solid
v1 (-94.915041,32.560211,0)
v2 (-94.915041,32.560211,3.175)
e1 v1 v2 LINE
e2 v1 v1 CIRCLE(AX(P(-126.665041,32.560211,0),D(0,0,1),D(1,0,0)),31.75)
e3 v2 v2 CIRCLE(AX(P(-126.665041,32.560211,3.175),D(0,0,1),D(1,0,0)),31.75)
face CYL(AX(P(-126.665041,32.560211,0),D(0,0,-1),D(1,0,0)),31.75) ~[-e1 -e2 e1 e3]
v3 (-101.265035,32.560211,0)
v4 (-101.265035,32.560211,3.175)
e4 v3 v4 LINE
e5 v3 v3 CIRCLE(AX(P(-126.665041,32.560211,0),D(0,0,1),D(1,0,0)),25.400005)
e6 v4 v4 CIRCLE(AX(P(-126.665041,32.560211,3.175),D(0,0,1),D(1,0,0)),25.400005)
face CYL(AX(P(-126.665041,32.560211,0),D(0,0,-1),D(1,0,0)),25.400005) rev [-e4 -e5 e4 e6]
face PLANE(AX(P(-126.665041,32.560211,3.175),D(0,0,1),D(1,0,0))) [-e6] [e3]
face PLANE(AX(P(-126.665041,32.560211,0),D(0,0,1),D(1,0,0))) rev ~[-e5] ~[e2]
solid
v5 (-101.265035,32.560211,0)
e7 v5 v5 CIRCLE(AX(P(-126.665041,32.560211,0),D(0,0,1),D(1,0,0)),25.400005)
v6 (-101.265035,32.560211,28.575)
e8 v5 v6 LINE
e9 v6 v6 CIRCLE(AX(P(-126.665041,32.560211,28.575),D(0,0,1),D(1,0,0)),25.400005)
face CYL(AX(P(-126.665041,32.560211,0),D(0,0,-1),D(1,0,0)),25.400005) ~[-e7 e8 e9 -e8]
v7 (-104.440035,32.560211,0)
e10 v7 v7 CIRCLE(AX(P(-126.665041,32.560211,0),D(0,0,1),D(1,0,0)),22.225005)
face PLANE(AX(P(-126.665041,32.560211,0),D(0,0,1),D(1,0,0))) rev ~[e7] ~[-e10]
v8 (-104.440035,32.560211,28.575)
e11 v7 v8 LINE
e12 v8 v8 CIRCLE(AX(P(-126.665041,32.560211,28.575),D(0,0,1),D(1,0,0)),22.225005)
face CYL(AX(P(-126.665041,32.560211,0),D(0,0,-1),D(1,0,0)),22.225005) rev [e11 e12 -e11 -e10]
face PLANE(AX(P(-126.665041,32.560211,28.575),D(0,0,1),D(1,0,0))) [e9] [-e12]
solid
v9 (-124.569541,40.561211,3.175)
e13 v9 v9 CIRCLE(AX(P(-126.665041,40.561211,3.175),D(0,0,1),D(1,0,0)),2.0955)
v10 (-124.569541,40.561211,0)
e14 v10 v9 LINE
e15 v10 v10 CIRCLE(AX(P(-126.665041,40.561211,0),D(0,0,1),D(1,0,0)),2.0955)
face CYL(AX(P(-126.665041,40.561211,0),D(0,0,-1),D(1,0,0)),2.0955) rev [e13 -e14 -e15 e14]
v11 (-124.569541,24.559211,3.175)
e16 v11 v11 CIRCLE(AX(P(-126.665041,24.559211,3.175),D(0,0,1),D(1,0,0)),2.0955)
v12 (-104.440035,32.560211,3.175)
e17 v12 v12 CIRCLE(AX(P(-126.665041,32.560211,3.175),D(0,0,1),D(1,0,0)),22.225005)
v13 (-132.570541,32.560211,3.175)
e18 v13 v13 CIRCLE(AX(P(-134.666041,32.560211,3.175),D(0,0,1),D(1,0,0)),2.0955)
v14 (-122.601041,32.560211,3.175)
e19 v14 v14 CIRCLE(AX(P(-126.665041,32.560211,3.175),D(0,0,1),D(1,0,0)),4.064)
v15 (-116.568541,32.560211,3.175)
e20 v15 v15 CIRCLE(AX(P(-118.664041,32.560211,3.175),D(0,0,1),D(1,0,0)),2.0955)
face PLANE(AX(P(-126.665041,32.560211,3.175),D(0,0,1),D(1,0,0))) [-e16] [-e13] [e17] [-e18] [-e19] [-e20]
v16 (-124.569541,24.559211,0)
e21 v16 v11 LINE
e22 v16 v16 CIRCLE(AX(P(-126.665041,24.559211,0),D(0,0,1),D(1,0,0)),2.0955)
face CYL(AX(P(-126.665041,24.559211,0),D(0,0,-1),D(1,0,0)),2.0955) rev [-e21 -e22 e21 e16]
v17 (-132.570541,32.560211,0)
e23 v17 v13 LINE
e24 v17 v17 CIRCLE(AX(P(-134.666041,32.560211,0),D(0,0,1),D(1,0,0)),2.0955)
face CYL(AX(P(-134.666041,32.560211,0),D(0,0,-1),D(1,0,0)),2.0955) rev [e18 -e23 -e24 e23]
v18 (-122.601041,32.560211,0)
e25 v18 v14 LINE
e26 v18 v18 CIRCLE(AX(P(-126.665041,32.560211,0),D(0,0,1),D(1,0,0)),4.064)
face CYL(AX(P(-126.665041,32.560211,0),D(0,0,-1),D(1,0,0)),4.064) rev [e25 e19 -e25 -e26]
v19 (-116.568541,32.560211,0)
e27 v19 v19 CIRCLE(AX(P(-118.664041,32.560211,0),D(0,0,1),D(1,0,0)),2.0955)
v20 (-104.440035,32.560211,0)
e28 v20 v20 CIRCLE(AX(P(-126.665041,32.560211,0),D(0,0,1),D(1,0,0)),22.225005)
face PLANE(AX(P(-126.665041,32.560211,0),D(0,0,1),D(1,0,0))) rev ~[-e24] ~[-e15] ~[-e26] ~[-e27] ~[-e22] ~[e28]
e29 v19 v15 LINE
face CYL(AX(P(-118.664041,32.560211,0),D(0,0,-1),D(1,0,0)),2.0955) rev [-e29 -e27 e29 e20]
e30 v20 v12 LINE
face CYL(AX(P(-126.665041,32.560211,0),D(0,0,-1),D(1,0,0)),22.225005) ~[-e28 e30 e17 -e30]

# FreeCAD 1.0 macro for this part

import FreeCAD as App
import Part
import Sketcher
from FreeCAD import Vector
Q = App.Units.Quantity

doc = App.newDocument("Part")
body = doc.addObject("PartDesign::Body", "Body")

sketch1 = body.newObject("Sketcher::SketchObject", "Sketch")
sketch1.AttachmentSupport = (doc.getObject("XY_Plane"), [""])
sketch1.MapMode = "FlatFace"
sketch1.addGeometry(Part.Circle(Vector(-126.7, 32.6, 0), Vector(0, 0, 1), 22.2), False)
sketch1.addGeometry(Part.Circle(Vector(-126.7, 24.6, 0), Vector(0, 0, 1), 2.1), False)
sketch1.addGeometry(Part.Circle(Vector(-134.7, 32.6, 0), Vector(0, 0, 1), 2.1), False)
sketch1.addGeometry(Part.Circle(Vector(-126.7, 32.6, 0), Vector(0, 0, 1), 4.1), False)
sketch1.addGeometry(Part.Circle(Vector(-126.7, 40.6, 0), Vector(0, 0, 1), 2.1), False)
sketch1.addGeometry(Part.Circle(Vector(-118.7, 32.6, 0), Vector(0, 0, 1), 2.1), False)
sketch1.addConstraint(Sketcher.Constraint("Coincident", 3, 3, 0, 3))
sketch1.addConstraint(Sketcher.Constraint("Equal", 1, 2))
sketch1.addConstraint(Sketcher.Constraint("Equal", 2, 4))
sketch1.addConstraint(Sketcher.Constraint("Equal", 4, 5))
sketch1.addConstraint(Sketcher.Constraint("Horizontal", 0, 3, 2, 3))
sketch1.addConstraint(Sketcher.Constraint("Horizontal", 3, 3, 5, 3))
sketch1.addConstraint(Sketcher.Constraint("Vertical", 0, 3, 1, 3))
sketch1.addConstraint(Sketcher.Constraint("Vertical", 3, 3, 4, 3))
sketch1.addConstraint(Sketcher.Constraint("Diameter", 3, Q("0.32 in")))
sketch1.addConstraint(Sketcher.Constraint("Diameter", 1, Q("0.165 in")))
sketch1.addConstraint(Sketcher.Constraint("DistanceY", 1, 3, 4, 3, Q("0.63 in")))
sketch1.addConstraint(Sketcher.Constraint("DistanceX", 2, 3, 5, 3, Q("0.63 in")))
sketch1.addConstraint(Sketcher.Constraint("Diameter", 0, Q("44.450011 mm")))
sketch1.addConstraint(Sketcher.Constraint("DistanceY", 1, 3, 0, 3, Q("0.315 in")))
sketch1.addConstraint(Sketcher.Constraint("DistanceX", 2, 3, 0, 3, Q("0.315 in")))
sketch1.addConstraint(Sketcher.Constraint("DistanceX", 0, 3, -1, 1, Q("126.665041 mm")))
sketch1.addConstraint(Sketcher.Constraint("DistanceY", -1, 1, 0, 3, Q("32.560211 mm")))
pad1 = body.newObject("PartDesign::Pad", "Pad")
pad1.Profile = sketch1
pad1.Length = Q("0.125 in")
body2 = doc.addObject("PartDesign::Body", "Body001")

sketch2 = body2.newObject("Sketcher::SketchObject", "Sketch001")
sketch2.AttachmentSupport = (doc.getObject("XY_Plane001"), [""])
sketch2.MapMode = "FlatFace"
sketch2.addGeometry(Part.Circle(Vector(-127, 33, 0), Vector(0, 0, 1), 32), False)
sketch2.addGeometry(Part.Circle(Vector(-127, 33, 0), Vector(0, 0, 1), 25), False)
sketch2.addConstraint(Sketcher.Constraint("Coincident", 1, 3, 0, 3))
sketch2.addConstraint(Sketcher.Constraint("Diameter", 0, Q("2.5 in")))
sketch2.addConstraint(Sketcher.Constraint("Diameter", 1, Q("50.800011 mm")))
sketch2.addConstraint(Sketcher.Constraint("DistanceX", 0, 3, -1, 1, Q("126.665041 mm")))
sketch2.addConstraint(Sketcher.Constraint("DistanceY", -1, 1, 0, 3, Q("32.560211 mm")))
pad2 = body2.newObject("PartDesign::Pad", "Pad001")
pad2.Profile = sketch2
pad2.Length = Q("0.125 in")
body3 = doc.addObject("PartDesign::Body", "Body002")

sketch3 = body3.newObject("Sketcher::SketchObject", "Sketch002")
sketch3.AttachmentSupport = (doc.getObject("XY_Plane002"), [""])
sketch3.MapMode = "FlatFace"
sketch3.addGeometry(Part.Circle(Vector(-127, 33, 0), Vector(0, 0, 1), 25), False)
sketch3.addGeometry(Part.Circle(Vector(-127, 33, 0), Vector(0, 0, 1), 22), False)
sketch3.addConstraint(Sketcher.Constraint("Coincident", 1, 3, 0, 3))
sketch3.addConstraint(Sketcher.Constraint("Diameter", 0, Q("50.800011 mm")))
sketch3.addConstraint(Sketcher.Constraint("Diameter", 1, Q("44.450011 mm")))
sketch3.addConstraint(Sketcher.Constraint("DistanceX", 0, 3, -1, 1, Q("126.665041 mm")))
sketch3.addConstraint(Sketcher.Constraint("DistanceY", -1, 1, 0, 3, Q("32.560211 mm")))
pad3 = body3.newObject("PartDesign::Pad", "Pad002")
pad3.Profile = sketch3
pad3.Length = Q("1.125 in")

doc.recompute()
